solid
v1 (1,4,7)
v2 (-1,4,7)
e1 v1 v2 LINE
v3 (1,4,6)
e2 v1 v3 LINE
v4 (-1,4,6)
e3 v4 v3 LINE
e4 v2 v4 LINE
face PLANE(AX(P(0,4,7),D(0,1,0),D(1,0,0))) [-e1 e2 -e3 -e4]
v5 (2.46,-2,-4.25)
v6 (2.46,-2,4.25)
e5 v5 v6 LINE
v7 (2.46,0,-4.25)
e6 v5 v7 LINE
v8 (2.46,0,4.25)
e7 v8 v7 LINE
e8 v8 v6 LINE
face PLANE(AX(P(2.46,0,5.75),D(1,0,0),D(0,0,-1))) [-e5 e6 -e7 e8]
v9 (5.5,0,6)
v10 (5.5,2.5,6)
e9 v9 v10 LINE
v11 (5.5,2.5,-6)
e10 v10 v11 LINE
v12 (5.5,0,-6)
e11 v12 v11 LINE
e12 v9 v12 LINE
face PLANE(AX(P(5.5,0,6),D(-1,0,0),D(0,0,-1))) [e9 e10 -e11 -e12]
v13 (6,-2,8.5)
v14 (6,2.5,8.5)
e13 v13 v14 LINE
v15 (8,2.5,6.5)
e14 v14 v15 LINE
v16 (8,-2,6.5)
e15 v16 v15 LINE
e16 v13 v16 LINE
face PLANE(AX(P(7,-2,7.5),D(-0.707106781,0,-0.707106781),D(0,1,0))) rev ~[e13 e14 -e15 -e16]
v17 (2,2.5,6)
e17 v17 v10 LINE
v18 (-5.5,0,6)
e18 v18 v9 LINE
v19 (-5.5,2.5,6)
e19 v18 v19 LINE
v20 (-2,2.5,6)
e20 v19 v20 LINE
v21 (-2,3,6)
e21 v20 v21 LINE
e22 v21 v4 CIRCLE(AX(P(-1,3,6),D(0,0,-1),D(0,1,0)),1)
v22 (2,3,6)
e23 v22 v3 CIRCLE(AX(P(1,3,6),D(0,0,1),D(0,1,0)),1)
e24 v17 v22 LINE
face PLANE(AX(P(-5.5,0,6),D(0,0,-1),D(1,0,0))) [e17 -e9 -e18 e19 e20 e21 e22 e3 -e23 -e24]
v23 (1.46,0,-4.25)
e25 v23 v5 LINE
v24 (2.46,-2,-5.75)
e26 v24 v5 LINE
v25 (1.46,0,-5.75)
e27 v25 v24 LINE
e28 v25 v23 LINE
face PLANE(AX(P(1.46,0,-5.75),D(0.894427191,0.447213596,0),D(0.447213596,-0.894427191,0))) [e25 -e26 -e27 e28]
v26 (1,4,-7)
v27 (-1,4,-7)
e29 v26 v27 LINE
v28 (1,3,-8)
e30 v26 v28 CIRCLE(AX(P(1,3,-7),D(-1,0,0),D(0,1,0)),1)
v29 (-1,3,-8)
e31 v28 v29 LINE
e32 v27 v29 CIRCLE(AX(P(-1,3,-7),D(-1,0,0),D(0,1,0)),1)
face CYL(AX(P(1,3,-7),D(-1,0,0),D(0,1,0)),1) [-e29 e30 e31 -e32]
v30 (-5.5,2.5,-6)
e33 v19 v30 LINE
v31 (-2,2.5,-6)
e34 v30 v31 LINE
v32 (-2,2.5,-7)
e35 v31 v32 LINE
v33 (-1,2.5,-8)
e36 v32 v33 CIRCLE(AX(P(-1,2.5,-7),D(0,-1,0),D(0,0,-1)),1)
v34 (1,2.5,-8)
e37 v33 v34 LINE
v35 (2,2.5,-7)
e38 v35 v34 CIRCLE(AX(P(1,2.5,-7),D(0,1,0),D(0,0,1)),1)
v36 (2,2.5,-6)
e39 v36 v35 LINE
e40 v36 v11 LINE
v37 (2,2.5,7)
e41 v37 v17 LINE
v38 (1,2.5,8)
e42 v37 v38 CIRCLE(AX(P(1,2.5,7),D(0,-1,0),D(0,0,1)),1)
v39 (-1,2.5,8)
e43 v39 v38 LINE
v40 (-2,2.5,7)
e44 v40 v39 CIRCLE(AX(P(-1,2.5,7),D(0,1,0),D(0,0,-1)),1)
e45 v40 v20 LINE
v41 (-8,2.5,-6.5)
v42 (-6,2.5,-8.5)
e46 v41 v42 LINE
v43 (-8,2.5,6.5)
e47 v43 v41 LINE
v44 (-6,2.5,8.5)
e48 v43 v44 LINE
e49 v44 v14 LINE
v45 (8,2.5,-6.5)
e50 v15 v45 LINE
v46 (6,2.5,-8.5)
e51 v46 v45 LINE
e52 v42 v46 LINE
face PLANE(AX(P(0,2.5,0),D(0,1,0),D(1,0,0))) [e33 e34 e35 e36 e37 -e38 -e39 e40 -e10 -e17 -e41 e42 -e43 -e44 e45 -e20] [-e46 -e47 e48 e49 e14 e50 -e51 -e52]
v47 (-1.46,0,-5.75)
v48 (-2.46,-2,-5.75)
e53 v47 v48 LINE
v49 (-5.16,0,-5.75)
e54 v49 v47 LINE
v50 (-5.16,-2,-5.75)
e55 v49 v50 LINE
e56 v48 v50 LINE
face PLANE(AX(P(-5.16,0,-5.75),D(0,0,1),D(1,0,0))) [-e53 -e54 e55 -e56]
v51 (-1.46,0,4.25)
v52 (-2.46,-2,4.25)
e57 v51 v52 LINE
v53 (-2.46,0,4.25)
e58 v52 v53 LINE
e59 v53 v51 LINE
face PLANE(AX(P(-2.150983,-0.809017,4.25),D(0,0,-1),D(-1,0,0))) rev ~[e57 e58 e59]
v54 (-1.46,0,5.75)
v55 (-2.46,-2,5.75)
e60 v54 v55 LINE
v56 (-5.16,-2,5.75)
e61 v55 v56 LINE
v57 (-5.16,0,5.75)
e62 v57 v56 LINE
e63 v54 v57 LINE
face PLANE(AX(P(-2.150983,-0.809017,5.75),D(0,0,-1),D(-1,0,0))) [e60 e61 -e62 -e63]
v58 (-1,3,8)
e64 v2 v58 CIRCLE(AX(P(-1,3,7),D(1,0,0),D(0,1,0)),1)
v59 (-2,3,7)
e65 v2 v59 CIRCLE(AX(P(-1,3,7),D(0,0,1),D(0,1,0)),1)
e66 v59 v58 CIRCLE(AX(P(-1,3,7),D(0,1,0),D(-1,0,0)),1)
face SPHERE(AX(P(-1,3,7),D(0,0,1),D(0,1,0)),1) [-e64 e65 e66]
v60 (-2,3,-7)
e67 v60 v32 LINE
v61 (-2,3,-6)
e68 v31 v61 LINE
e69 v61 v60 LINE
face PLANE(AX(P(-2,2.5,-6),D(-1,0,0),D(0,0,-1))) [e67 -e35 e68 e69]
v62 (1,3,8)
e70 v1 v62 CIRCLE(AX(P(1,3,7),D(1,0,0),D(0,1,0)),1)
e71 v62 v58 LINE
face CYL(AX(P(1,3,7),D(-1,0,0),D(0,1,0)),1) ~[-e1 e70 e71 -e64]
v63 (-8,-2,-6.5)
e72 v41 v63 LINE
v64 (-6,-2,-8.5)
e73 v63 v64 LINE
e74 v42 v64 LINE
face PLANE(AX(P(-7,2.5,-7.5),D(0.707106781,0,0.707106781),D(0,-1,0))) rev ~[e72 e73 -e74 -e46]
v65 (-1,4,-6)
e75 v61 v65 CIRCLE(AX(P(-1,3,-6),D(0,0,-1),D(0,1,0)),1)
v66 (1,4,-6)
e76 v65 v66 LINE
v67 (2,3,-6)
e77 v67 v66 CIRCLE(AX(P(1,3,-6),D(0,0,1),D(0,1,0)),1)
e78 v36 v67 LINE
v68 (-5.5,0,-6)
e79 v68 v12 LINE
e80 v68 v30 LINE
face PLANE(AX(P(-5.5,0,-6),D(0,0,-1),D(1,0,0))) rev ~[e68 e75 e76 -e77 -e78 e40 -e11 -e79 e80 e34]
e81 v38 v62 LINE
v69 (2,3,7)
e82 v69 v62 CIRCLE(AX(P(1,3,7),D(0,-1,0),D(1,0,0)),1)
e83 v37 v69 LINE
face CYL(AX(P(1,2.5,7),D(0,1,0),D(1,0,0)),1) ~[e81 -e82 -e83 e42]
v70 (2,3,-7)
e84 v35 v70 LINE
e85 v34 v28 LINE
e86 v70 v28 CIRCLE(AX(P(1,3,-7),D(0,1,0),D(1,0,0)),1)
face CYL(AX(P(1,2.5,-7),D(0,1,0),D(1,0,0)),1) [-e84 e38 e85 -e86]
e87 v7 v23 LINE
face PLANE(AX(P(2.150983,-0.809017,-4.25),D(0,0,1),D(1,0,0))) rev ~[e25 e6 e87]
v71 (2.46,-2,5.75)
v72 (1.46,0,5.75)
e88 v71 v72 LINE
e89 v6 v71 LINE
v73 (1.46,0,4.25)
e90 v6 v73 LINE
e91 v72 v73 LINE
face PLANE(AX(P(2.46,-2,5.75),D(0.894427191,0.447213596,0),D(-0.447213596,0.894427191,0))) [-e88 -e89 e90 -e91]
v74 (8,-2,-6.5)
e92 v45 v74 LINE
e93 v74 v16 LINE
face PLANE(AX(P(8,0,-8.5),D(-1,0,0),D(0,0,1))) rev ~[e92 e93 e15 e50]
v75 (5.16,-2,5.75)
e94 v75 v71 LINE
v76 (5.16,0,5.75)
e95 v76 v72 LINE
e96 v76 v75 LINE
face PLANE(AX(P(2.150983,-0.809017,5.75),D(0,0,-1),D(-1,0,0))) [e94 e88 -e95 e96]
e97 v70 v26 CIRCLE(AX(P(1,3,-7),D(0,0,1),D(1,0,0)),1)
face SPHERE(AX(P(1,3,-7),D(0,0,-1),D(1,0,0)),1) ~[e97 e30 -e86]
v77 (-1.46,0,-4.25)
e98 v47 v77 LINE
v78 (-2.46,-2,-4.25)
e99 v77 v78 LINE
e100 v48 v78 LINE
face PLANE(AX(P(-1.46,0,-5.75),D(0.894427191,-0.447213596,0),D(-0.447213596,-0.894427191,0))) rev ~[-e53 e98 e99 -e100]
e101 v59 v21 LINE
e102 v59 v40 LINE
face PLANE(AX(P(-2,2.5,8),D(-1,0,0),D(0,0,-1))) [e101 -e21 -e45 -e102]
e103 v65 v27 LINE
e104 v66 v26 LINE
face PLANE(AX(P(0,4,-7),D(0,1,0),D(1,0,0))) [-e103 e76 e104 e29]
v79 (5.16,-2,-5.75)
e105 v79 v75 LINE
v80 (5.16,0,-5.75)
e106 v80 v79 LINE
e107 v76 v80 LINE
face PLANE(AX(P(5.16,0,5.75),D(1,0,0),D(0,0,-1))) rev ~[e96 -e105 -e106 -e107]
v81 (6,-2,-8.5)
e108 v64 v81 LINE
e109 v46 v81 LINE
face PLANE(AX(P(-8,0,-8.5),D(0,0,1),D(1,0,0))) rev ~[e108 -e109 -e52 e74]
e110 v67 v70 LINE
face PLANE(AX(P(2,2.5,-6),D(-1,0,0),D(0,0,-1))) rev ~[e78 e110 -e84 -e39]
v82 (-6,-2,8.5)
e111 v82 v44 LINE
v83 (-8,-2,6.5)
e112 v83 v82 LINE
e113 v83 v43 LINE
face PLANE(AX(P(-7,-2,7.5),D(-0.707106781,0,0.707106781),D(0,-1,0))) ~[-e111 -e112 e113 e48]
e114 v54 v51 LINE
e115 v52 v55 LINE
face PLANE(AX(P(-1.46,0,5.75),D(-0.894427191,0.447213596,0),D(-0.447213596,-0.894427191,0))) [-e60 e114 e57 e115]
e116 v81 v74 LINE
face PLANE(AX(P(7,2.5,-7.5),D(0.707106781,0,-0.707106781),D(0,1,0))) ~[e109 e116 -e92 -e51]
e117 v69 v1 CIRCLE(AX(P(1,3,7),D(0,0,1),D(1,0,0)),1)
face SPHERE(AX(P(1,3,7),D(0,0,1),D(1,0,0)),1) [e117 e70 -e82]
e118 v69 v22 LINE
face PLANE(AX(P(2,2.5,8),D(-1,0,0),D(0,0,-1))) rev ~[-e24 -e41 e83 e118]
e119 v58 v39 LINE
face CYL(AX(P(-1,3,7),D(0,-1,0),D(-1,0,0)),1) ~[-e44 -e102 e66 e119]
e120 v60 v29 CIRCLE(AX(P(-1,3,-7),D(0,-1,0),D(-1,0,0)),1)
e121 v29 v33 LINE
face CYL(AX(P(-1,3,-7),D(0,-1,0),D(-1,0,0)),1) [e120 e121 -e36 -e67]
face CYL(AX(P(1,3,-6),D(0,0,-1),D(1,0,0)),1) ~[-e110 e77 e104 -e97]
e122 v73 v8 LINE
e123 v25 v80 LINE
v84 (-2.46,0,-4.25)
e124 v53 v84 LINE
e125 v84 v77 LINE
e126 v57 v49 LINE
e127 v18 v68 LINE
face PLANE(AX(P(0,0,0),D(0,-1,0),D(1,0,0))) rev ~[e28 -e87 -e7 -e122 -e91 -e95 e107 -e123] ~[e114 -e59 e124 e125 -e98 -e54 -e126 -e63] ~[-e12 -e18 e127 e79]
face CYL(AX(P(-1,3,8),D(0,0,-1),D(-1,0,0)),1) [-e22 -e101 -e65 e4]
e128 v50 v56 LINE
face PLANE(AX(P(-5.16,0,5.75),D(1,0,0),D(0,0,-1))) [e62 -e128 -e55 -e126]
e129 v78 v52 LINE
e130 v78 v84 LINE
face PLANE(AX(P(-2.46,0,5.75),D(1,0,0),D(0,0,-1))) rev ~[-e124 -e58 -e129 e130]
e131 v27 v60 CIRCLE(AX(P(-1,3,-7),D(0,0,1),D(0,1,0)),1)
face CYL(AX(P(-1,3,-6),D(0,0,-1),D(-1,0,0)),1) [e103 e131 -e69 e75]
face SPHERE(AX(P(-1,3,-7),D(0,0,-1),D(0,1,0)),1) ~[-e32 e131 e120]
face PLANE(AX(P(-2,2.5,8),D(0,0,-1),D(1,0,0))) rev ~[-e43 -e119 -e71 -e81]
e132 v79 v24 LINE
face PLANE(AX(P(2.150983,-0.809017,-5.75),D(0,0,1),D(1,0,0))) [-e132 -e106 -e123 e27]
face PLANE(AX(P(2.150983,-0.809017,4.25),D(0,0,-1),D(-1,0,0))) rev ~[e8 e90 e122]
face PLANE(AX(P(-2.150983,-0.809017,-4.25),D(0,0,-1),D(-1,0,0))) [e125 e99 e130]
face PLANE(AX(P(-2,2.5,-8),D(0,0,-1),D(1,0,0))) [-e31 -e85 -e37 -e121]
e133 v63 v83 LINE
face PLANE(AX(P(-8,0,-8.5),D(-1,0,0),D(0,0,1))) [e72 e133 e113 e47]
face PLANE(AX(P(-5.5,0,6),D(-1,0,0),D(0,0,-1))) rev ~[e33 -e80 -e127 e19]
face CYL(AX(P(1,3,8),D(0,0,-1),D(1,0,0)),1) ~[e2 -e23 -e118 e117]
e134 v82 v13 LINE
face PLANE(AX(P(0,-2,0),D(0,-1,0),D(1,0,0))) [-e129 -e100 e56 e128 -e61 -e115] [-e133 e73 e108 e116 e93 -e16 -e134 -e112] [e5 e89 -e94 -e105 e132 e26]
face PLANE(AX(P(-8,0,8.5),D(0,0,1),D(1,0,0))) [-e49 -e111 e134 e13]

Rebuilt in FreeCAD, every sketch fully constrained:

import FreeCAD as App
import Part
import Sketcher

V = App.Vector


def edges_at(feature, points):
    """Names of the edges that pass closest to the given points."""
    edges = feature.Shape.Edges
    near = lambda p: min(range(len(edges)), key=lambda i: edges[i].distToShape(Part.Vertex(*p))[0])
    return sorted({f"Edge{near(p) + 1}" for p in points})


def add_polygon(sketch, points):
    """Adds a closed chain of lines whose ends are joined by coincident constraints."""
    first, n = sketch.GeometryCount, len(points)
    for a, b in zip(points, points[1:] + points[:1]):
        sketch.addGeometry(Part.LineSegment(App.Vector(*a, 0), App.Vector(*b, 0)), False)
    for i in range(n):
        sketch.addConstraint(Sketcher.Constraint("Coincident", first + i, 2, first + (i + 1) % n, 1))

doc = App.newDocument("Part")
body = doc.addObject("PartDesign::Body", "Body")

sketch1 = body.newObject("Sketcher::SketchObject", "Sketch")
sketch1.AttachmentSupport = (doc.getObject("XZ_Plane"), [""])
sketch1.MapMode = "FlatFace"
add_polygon(sketch1, [(-8, -8), (-8, 8), (8, 8), (8, -8)])
add_polygon(sketch1, [(6, 6), (-6, 6), (-6, -6), (6, -6)])
sketch1.addConstraint([
    Sketcher.Constraint("Vertical", 0),
    Sketcher.Constraint("Horizontal", 1),
    Sketcher.Constraint("Vertical", 2),
    Sketcher.Constraint("Horizontal", 3),
    Sketcher.Constraint("Horizontal", 4),
    Sketcher.Constraint("Vertical", 5),
    Sketcher.Constraint("Horizontal", 6),
    Sketcher.Constraint("Vertical", 7),
    Sketcher.Constraint("Symmetric", 0, 2, 2, 2, -1, 1),
    Sketcher.Constraint("Symmetric", 4, 2, 6, 2, -1, 1),
    Sketcher.Constraint("DistanceX", 1, 1, 1, 2, 16.0),
    Sketcher.Constraint("DistanceX", 4, 2, 4, 1, 11.0),
    Sketcher.Constraint("DistanceY", 0, 1, 0, 2, 17.0),
    Sketcher.Constraint("DistanceY", 5, 2, 5, 1, 12.0),
])
pad1 = body.newObject("PartDesign::Pad", "Pad")
pad1.Profile = sketch1
pad1.Length = 2.5
pad1.Reversed = True

sketch2 = body.newObject("Sketcher::SketchObject", "Sketch001")
sketch2.AttachmentSupport = (doc.getObject("XZ_Plane"), [""])
sketch2.MapMode = "FlatFace"
add_polygon(sketch2, [(-8, 8), (-8, -8), (8, -8), (8, 8)])
sketch2.addConstraint([
    Sketcher.Constraint("Vertical", 0),
    Sketcher.Constraint("Horizontal", 1),
    Sketcher.Constraint("Vertical", 2),
    Sketcher.Constraint("Horizontal", 3),
    Sketcher.Constraint("Symmetric", 0, 2, 2, 2, -1, 1),
    Sketcher.Constraint("DistanceX", 1, 1, 1, 2, 16.0),
    Sketcher.Constraint("DistanceY", 0, 2, 0, 1, 17.0),
])
pad2 = body.newObject("PartDesign::Pad", "Pad001")
pad2.Profile = sketch2
pad2.Length = 2

sketch3 = body.newObject("Sketcher::SketchObject", "Sketch002")
sketch3.AttachmentSupport = (doc.getObject("XZ_Plane"), [""])
sketch3.MapMode = "FlatFace"
add_polygon(sketch3, [(-5.2, -5.8), (-5.2, 5.8), (-2.5, 5.8), (-2.5, -5.8)])
add_polygon(sketch3, [(2.5, -5.8), (2.5, 5.8), (5.2, 5.8), (5.2, -5.8)])
sketch3.addConstraint([
    Sketcher.Constraint("Vertical", 0),
    Sketcher.Constraint("Horizontal", 1),
    Sketcher.Constraint("Vertical", 2),
    Sketcher.Constraint("Horizontal", 3),
    Sketcher.Constraint("Vertical", 4),
    Sketcher.Constraint("Horizontal", 5),
    Sketcher.Constraint("Vertical", 6),
    Sketcher.Constraint("Horizontal", 7),
    Sketcher.Constraint("Symmetric", 2, 2, 4, 2, -1, 1),
    Sketcher.Constraint("Symmetric", 0, 2, 6, 2, -1, 1),
    Sketcher.Constraint("Horizontal", 1, 2, 4, 2),
    Sketcher.Constraint("DistanceX", 1, 1, 1, 2, 2.7),
    Sketcher.Constraint("DistanceY", 0, 1, 0, 2, 11.5),
    Sketcher.Constraint("DistanceX", 0, 2, -1, 1, 5.16),
])
pocket1 = body.newObject("PartDesign::Pocket", "Pocket")
pocket1.Profile = sketch3
pocket1.Type = "ThroughAll"
pocket1.Reversed = True
doc.recompute()

chamfer = body.newObject("PartDesign::Chamfer", "Chamfer")
chamfer.Base = (pocket1, edges_at(pocket1, [
    (-8, 0.25, -8.5),
    (8, 0.25, -8.5),
    (8, 0.25, 8.5),
    (-8, 0.25, 8.5),
]))
chamfer.Size = 2

sketch4 = body.newObject("Sketcher::SketchObject", "Sketch003")
sketch4.AttachmentSupport = (doc.getObject("XZ_Plane"), [""])
sketch4.MapMode = "FlatFace"
sketch4.AttachmentOffset = App.Placement(V(0, 0, -2.5), App.Rotation())
add_polygon(sketch4, [(-2, -8), (-2, -6), (2, -6), (2, -8)])
add_polygon(sketch4, [(-2, 6), (-2, 8), (2, 8), (2, 6)])
sketch4.addConstraint([
    Sketcher.Constraint("Vertical", 0),
    Sketcher.Constraint("Horizontal", 1),
    Sketcher.Constraint("Vertical", 2),
    Sketcher.Constraint("Horizontal", 3),
    Sketcher.Constraint("Vertical", 4),
    Sketcher.Constraint("Horizontal", 5),
    Sketcher.Constraint("Vertical", 6),
    Sketcher.Constraint("Horizontal", 7),
    Sketcher.Constraint("Symmetric", 2, 2, 4, 2, -1, 1),
    Sketcher.Constraint("Symmetric", 0, 2, 6, 2, -1, 1),
    Sketcher.Constraint("Vertical", 3, 2, 4, 2),
    Sketcher.Constraint("DistanceX", 1, 1, 1, 2, 4.0),
    Sketcher.Constraint("DistanceY", 0, 1, 0, 2, 2.0),
    Sketcher.Constraint("DistanceY", 0, 2, -1, 1, 6.0),
])
pad3 = body.newObject("PartDesign::Pad", "Pad002")
pad3.Profile = sketch4
pad3.Length = 1.5
pad3.Reversed = True
doc.recompute()

fillet = body.newObject("PartDesign::Fillet", "Fillet")
fillet.Base = (pad3, edges_at(pad3, [
    (2, 4, -7),
    (-2, 4, -7),
    (2, 4, 7),
    (-2, 4, 7),
]))
fillet.Radius = 1
doc.recompute()

fillet2 = body.newObject("PartDesign::Fillet", "Fillet001")
fillet2.Base = (fillet, edges_at(fillet, [
    (2, 2.75, -8),
    (0, 4, -8),
    (-2, 2.75, -8),
    (-1.707, 3.707, -8),
    (1.707, 3.707, -8),
    (2, 2.75, 8),
    (0, 4, 8),
    (-2, 2.75, 8),
    (-1.707, 3.707, 8),
    (1.707, 3.707, 8),
]))
fillet2.Radius = 1

sketch5 = body.newObject("Sketcher::SketchObject", "Sketch004")
sketch5.AttachmentSupport = (doc.getObject("XY_Plane"), [""])
sketch5.MapMode = "FlatFace"
sketch5.AttachmentOffset = App.Placement(V(0, 0, -5.75), App.Rotation())
add_polygon(sketch5, [(-2.5, 0), (-2.5, -2), (-1.5, 0)])
add_polygon(sketch5, [(2.5, -2), (2.5, 0), (1.5, 0)])
sketch5.addConstraint([
    Sketcher.Constraint("Vertical", 0),
    Sketcher.Constraint("Horizontal", 2),
    Sketcher.Constraint("Vertical", 3),
    Sketcher.Constraint("Horizontal", 4),
    Sketcher.Constraint("Symmetric", 2, 2, 3, 2, -1, 1),
    Sketcher.Constraint("Symmetric", 1, 2, 4, 2, -2),
    Sketcher.Constraint("Horizontal", 0, 2, 5, 2),
    Sketcher.Constraint("DistanceX", 2, 2, 2, 1, 1.0),
    Sketcher.Constraint("DistanceY", 0, 2, 0, 1, 2.0),
    Sketcher.Constraint("DistanceX", 0, 2, -1, 1, 2.46),
])
pocket2 = body.newObject("PartDesign::Pocket", "Pocket001")
pocket2.Profile = sketch5
pocket2.Length = 1.5
pocket2.Reversed = True

sketch6 = body.newObject("Sketcher::SketchObject", "Sketch005")
sketch6.AttachmentSupport = (doc.getObject("XY_Plane"), [""])
sketch6.MapMode = "FlatFace"
sketch6.AttachmentOffset = App.Placement(V(0, 0, 5.75), App.Rotation())
add_polygon(sketch6, [(2.5, 0), (2.5, -2), (1.5, 0)])
add_polygon(sketch6, [(-2.5, -2), (-2.5, 0), (-1.5, 0)])
sketch6.addConstraint([
    Sketcher.Constraint("Vertical", 0),
    Sketcher.Constraint("Horizontal", 2),
    Sketcher.Constraint("Vertical", 3),
    Sketcher.Constraint("Horizontal", 4),
    Sketcher.Constraint("Symmetric", 2, 2, 3, 2, -1, 1),
    Sketcher.Constraint("Symmetric", 1, 2, 4, 2, -2),
    Sketcher.Constraint("Horizontal", 0, 2, 5, 2),
    Sketcher.Constraint("DistanceX", 2, 1, 2, 2, 1.0),
    Sketcher.Constraint("DistanceY", 0, 2, 0, 1, 2.0),
    Sketcher.Constraint("DistanceX", -1, 1, 0, 2, 2.46),
])
pocket3 = body.newObject("PartDesign::Pocket", "Pocket002")
pocket3.Profile = sketch6
pocket3.Length = 1.5

doc.recompute()
